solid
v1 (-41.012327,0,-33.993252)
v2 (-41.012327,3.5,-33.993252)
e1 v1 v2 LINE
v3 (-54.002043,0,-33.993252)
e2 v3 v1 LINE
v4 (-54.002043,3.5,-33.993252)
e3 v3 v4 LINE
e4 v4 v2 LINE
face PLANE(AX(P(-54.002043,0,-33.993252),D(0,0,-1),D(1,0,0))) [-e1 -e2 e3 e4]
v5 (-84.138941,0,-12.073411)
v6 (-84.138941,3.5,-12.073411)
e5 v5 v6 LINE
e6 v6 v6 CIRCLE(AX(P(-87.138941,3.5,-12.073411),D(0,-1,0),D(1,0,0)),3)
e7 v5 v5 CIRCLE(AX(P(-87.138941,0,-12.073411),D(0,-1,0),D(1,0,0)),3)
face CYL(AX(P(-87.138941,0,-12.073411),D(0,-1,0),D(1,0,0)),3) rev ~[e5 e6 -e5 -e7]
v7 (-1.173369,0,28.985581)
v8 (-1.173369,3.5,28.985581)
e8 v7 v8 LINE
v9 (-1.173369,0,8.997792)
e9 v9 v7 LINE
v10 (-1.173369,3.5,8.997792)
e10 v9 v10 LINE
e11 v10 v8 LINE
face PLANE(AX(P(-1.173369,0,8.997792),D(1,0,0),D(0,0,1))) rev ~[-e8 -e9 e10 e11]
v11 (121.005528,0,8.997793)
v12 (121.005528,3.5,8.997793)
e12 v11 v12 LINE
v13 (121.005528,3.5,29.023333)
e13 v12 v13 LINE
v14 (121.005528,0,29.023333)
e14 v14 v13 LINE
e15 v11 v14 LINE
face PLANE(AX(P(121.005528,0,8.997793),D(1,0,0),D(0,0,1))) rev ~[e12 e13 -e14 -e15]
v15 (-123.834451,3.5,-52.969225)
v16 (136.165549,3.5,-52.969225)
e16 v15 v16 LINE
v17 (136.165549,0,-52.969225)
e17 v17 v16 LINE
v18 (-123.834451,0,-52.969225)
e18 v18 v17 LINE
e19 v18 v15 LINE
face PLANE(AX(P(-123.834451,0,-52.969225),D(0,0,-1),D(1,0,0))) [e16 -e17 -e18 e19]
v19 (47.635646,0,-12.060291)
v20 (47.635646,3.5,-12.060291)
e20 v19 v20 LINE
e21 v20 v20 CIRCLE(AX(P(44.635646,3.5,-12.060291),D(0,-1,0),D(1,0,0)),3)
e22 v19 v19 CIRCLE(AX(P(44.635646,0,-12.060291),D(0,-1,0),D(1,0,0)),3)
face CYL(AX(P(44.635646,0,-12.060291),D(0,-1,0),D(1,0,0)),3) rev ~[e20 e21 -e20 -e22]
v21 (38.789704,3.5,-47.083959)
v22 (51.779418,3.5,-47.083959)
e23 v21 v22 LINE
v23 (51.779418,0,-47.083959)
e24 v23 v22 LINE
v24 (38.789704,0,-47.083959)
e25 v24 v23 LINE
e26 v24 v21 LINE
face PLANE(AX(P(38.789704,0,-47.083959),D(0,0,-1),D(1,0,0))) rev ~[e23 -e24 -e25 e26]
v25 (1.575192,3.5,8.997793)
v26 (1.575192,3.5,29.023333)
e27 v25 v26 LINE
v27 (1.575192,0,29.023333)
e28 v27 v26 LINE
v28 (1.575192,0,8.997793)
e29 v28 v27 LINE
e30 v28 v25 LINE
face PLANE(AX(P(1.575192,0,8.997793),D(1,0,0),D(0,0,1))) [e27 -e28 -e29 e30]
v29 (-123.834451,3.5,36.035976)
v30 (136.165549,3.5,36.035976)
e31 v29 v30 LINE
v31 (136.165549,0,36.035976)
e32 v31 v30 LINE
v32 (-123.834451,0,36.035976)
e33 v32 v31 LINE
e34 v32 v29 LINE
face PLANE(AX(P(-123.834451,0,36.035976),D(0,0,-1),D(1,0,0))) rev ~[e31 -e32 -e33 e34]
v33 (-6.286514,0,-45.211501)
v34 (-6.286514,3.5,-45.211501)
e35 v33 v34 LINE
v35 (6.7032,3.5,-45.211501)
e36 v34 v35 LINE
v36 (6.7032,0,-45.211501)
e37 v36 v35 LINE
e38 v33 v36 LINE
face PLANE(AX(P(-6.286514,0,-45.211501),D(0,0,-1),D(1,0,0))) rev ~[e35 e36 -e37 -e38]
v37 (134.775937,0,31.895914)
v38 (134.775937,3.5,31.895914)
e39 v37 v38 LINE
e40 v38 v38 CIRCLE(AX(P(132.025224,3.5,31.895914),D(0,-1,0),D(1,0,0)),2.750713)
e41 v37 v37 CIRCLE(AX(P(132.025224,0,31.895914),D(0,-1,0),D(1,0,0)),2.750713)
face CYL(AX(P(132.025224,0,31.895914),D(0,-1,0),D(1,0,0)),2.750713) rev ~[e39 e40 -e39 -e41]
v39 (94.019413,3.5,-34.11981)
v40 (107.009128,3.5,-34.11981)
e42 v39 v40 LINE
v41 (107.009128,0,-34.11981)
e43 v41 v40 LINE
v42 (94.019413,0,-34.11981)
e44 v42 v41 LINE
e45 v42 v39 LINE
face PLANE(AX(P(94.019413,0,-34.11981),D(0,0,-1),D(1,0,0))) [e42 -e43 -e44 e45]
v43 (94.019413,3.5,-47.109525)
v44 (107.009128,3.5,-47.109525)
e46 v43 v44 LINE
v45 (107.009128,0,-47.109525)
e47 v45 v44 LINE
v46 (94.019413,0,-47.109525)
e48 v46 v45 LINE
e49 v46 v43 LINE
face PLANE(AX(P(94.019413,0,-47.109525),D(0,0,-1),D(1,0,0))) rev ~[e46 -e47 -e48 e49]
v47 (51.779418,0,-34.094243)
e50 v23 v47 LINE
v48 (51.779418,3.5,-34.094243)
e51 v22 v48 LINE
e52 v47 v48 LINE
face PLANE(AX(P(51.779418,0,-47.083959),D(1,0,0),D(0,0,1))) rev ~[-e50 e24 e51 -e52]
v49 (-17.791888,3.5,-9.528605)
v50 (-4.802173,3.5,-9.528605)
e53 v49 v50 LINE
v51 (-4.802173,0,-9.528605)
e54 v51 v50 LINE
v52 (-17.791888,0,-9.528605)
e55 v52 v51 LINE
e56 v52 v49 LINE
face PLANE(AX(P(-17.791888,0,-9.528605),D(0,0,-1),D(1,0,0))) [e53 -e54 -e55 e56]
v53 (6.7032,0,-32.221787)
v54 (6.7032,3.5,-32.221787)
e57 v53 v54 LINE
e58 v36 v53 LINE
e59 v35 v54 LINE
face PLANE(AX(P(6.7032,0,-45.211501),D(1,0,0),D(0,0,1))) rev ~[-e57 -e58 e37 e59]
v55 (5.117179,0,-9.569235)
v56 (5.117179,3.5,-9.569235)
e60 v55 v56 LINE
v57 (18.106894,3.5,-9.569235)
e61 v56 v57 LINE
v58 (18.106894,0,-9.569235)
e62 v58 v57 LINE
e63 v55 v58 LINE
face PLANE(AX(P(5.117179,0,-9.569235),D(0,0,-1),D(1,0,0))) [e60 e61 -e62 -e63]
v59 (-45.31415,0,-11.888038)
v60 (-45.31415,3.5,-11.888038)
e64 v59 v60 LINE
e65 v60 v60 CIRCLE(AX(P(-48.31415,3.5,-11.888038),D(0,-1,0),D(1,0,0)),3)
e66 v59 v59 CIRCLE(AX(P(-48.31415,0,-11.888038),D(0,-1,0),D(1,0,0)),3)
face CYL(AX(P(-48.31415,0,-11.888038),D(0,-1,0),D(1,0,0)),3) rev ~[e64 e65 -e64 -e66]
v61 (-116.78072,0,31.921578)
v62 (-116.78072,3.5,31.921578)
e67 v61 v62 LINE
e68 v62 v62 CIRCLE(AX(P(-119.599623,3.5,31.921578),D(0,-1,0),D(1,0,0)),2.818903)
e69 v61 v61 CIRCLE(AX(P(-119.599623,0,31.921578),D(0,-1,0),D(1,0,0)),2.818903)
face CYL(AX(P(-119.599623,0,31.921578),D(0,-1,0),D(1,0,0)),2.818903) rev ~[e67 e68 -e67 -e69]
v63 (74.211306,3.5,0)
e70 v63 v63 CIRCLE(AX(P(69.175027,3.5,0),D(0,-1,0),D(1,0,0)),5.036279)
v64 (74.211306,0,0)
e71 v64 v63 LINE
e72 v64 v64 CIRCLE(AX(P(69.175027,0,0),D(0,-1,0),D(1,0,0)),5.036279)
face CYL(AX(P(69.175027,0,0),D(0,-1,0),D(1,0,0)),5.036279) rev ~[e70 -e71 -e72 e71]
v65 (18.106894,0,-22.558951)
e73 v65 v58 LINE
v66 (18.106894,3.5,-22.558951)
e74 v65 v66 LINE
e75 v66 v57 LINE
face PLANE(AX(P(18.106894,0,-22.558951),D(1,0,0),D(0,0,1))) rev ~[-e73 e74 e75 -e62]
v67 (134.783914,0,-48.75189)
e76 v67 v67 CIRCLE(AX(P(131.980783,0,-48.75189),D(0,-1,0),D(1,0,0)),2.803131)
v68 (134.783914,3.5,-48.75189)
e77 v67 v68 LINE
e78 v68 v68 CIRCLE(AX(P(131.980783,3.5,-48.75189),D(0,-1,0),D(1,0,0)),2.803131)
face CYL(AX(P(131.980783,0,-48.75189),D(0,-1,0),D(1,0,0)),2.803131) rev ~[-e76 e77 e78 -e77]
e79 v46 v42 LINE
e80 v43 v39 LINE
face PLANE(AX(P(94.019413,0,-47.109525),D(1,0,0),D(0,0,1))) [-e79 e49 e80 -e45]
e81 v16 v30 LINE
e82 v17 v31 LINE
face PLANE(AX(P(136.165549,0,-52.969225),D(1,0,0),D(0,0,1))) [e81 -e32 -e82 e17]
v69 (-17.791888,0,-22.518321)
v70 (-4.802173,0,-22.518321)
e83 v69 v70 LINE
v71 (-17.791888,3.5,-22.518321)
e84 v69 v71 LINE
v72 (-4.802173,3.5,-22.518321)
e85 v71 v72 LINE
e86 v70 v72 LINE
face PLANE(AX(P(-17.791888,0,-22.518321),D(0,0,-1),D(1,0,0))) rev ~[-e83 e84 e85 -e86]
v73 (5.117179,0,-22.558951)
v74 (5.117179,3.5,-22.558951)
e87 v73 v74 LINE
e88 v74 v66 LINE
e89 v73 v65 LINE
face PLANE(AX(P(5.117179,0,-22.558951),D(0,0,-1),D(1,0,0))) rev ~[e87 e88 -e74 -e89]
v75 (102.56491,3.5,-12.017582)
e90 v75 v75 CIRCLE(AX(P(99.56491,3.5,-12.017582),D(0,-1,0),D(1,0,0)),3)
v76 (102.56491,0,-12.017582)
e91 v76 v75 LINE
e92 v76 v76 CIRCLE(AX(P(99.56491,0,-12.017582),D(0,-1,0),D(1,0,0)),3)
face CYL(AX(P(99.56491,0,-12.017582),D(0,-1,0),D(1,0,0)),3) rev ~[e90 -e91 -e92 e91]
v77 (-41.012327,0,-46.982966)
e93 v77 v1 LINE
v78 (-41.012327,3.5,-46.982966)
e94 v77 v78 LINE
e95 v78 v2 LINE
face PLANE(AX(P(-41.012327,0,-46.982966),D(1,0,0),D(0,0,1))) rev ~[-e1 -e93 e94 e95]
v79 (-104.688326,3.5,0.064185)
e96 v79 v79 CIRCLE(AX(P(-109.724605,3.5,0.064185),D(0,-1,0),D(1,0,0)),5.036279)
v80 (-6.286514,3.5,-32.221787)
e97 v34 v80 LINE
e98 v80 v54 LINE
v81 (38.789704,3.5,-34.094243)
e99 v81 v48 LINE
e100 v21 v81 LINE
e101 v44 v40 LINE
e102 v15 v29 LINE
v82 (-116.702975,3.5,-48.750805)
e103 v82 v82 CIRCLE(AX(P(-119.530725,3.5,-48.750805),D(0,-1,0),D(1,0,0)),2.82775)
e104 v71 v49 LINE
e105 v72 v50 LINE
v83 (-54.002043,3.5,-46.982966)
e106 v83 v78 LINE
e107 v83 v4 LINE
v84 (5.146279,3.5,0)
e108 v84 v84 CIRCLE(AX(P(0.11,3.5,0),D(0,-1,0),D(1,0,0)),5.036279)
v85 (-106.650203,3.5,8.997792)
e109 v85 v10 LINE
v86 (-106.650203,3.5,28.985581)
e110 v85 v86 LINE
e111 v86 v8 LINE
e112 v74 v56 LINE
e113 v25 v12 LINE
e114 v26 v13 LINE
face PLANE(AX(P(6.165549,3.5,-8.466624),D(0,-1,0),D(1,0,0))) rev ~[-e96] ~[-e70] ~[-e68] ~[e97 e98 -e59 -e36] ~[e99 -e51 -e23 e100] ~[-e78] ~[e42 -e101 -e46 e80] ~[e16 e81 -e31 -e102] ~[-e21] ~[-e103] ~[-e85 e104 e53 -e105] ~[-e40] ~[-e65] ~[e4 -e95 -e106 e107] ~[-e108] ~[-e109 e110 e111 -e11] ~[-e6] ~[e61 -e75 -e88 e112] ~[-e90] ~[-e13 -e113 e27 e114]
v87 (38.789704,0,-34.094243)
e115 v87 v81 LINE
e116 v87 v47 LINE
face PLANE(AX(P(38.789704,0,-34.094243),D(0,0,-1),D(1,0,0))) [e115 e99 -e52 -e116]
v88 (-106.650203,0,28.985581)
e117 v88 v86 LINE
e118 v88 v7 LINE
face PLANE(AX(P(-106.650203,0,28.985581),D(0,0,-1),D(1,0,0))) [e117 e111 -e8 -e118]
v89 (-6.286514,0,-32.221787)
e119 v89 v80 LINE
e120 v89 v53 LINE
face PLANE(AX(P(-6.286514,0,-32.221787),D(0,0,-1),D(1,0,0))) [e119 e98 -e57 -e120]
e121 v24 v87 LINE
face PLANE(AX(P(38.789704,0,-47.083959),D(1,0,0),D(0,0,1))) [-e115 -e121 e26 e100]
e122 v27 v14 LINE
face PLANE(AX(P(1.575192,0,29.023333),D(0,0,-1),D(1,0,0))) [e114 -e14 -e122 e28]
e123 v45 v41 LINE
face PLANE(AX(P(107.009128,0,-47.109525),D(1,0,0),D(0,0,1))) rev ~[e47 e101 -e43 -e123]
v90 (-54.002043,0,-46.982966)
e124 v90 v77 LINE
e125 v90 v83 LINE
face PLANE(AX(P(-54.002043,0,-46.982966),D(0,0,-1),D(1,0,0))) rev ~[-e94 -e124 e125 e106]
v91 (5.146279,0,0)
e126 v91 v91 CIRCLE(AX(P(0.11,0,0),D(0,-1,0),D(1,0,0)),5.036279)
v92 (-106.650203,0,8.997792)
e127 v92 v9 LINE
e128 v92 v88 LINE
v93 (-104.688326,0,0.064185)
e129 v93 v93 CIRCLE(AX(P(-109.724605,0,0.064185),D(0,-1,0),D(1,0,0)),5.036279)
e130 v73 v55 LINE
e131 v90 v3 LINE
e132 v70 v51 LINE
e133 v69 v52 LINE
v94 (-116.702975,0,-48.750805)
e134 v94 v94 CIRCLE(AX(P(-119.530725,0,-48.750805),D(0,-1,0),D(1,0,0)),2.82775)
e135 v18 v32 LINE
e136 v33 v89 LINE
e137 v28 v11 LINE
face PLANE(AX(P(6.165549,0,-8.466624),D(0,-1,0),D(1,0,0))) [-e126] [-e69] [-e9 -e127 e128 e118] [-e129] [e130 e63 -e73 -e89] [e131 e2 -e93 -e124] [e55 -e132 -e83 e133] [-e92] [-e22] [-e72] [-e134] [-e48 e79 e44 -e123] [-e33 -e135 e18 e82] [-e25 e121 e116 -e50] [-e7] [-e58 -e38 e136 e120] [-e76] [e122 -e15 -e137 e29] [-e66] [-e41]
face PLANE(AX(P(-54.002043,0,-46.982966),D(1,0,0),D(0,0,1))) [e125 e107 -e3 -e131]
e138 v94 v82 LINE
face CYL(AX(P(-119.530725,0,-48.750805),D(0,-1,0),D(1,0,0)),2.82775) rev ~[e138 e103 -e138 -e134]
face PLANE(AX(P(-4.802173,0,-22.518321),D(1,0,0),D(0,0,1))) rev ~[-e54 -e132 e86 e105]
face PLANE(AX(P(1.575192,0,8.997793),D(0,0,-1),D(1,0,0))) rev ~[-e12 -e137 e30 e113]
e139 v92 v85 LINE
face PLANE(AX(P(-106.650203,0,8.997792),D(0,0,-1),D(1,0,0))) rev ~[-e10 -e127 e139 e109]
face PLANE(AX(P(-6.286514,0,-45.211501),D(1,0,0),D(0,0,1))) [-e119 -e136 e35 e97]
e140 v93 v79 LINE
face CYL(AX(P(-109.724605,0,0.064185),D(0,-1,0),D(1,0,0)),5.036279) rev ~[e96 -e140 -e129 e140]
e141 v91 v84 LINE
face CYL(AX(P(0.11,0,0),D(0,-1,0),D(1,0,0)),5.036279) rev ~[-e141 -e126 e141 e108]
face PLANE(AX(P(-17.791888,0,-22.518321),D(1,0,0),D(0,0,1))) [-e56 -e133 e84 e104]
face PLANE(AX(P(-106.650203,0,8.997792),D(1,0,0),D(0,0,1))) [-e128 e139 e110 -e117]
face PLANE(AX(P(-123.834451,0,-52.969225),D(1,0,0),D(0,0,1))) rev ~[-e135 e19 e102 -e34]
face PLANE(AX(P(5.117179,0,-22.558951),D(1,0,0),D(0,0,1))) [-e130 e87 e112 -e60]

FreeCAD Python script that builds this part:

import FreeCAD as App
import Part
import Sketcher
from FreeCAD import Vector
Q = App.Units.Quantity


def add_polygon(sketch, points):
    """Adds a closed chain of lines whose ends are joined by coincident constraints."""
    first, n = sketch.GeometryCount, len(points)
    for a, b in zip(points, points[1:] + points[:1]):
        sketch.addGeometry(Part.LineSegment(App.Vector(*a, 0), App.Vector(*b, 0)), False)
    for i in range(n):
        sketch.addConstraint(Sketcher.Constraint("Coincident", first + i, 2, first + (i + 1) % n, 1))

doc = App.newDocument("Part")
params = doc.addObject("Spreadsheet::Sheet", "Params")
for row, (alias, value) in enumerate([
    ("sketch1_diameter", "6 mm"),
    ("sketch1_width", "260 mm"),
    ("pad1_length", "3.5 mm"),
], start=1):
    params.set(f"A{row}", alias)
    params.set(f"B{row}", "=" + value)
    params.setAlias(f"B{row}", alias)

body = doc.addObject("PartDesign::Body", "Body")

# Sketch on XZ plane
sketch1 = doc.addObject("Sketcher::SketchObject", "Sketch")
body.addObject(sketch1)
sketch1.AttachmentSupport = (doc.XZ_Plane, [""])
sketch1.MapMode = "FlatFace"
add_polygon(sketch1, [(-123.8, 36), (-123.8, -53), (136.2, -53), (136.2, 36)])  # lines 0-3
sketch1.addGeometry(Part.Circle(Vector(-119.5, -48.8, 0), Vector(0, 0, 1), 2.8), False)  # 4
add_polygon(sketch1, [(-41, -47), (-54, -47), (-54, -34), (-41, -34)])  # lines 5-8
add_polygon(sketch1, [(6.7, -45.2), (-6.3, -45.2), (-6.3, -32.2), (6.7, -32.2)])  # lines 9-12
sketch1.addGeometry(Part.Circle(Vector(-87.1, -12.1, 0), Vector(0, 0, 1), 3), False)  # 13
sketch1.addGeometry(Part.Circle(Vector(-48.3, -11.9, 0), Vector(0, 0, 1), 3), False)  # 14
add_polygon(sketch1, [(-4.8, -22.5), (-17.8, -22.5), (-17.8, -9.5), (-4.8, -9.5)])  # lines 15-18
add_polygon(sketch1, [(51.8, -47.1), (38.8, -47.1), (38.8, -34.1), (51.8, -34.1)])  # lines 19-22
sketch1.addGeometry(Part.Circle(Vector(132, -48.8, 0), Vector(0, 0, 1), 2.8), False)  # 23
add_polygon(sketch1, [(107, -47.1), (94, -47.1), (94, -34.1), (107, -34.1)])  # lines 24-27
add_polygon(sketch1, [(18.1, -22.6), (5.1, -22.6), (5.1, -9.6), (18.1, -9.6)])  # lines 28-31
sketch1.addGeometry(Part.Circle(Vector(44.6, -12.1, 0), Vector(0, 0, 1), 3), False)  # 32
sketch1.addGeometry(Part.Circle(Vector(99.6, -12, 0), Vector(0, 0, 1), 3), False)  # 33
sketch1.addGeometry(Part.Circle(Vector(-109.7, 0.1, 0), Vector(0, 0, 1), 5), False)  # 34
sketch1.addGeometry(Part.Circle(Vector(0.1, 0, 0), Vector(0, 0, 1), 5), False)  # 35
sketch1.addGeometry(Part.Circle(Vector(-119.6, 31.9, 0), Vector(0, 0, 1), 2.8), False)  # 36
add_polygon(sketch1, [(-1.2, 9), (-106.7, 9), (-106.7, 29), (-1.2, 29)])  # lines 37-40
sketch1.addGeometry(Part.Circle(Vector(69.2, 0, 0), Vector(0, 0, 1), 5), False)  # 41
add_polygon(sketch1, [(121, 9), (1.6, 9), (1.6, 29), (121, 29)])  # lines 42-45
sketch1.addGeometry(Part.Circle(Vector(132, 31.9, 0), Vector(0, 0, 1), 2.8), False)  # 46
sketch1.addConstraint([
    Sketcher.Constraint("Vertical", 0),
    Sketcher.Constraint("Horizontal", 1),
    Sketcher.Constraint("Vertical", 2),
    Sketcher.Constraint("Horizontal", 3),
    Sketcher.Constraint("Horizontal", 5),
    Sketcher.Constraint("Vertical", 6),
    Sketcher.Constraint("Horizontal", 7),
    Sketcher.Constraint("Vertical", 8),
    Sketcher.Constraint("Horizontal", 9),
    Sketcher.Constraint("Vertical", 10),
    Sketcher.Constraint("Horizontal", 11),
    Sketcher.Constraint("Vertical", 12),
    Sketcher.Constraint("Horizontal", 15),
    Sketcher.Constraint("Vertical", 16),
    Sketcher.Constraint("Horizontal", 17),
    Sketcher.Constraint("Vertical", 18),
    Sketcher.Constraint("Horizontal", 19),
    Sketcher.Constraint("Vertical", 20),
    Sketcher.Constraint("Horizontal", 21),
    Sketcher.Constraint("Vertical", 22),
    Sketcher.Constraint("Horizontal", 24),
    Sketcher.Constraint("Vertical", 25),
    Sketcher.Constraint("Horizontal", 26),
    Sketcher.Constraint("Vertical", 27),
    Sketcher.Constraint("Horizontal", 28),
    Sketcher.Constraint("Vertical", 29),
    Sketcher.Constraint("Horizontal", 30),
    Sketcher.Constraint("Vertical", 31),
    Sketcher.Constraint("Horizontal", 37),
    Sketcher.Constraint("Vertical", 38),
    Sketcher.Constraint("Horizontal", 39),
    Sketcher.Constraint("Vertical", 40),
    Sketcher.Constraint("Horizontal", 42),
    Sketcher.Constraint("Vertical", 43),
    Sketcher.Constraint("Horizontal", 44),
    Sketcher.Constraint("Vertical", 45),
    Sketcher.Constraint("Equal", 13, 14),
    Sketcher.Constraint("Equal", 14, 32),
    Sketcher.Constraint("Equal", 32, 33),
    Sketcher.Constraint("Equal", 34, 35),
    Sketcher.Constraint("Equal", 35, 41),
    Sketcher.Constraint("PointOnObject", 35, 3, -1),
    Sketcher.Constraint("PointOnObject", 41, 3, -1),
    Sketcher.Constraint("Horizontal", 40, 2, 42, 2),
    Sketcher.Constraint("Equal", 7, 9),
    Sketcher.Constraint("Equal", 11, 15),
    Sketcher.Constraint("Equal", 17, 19),
    Sketcher.Constraint("Equal", 21, 24),
    Sketcher.Constraint("Equal", 26, 28),
    Sketcher.Constraint("Equal", 30, 6),
    Sketcher.Constraint("Equal", 8, 10),
    Sketcher.Constraint("Equal", 12, 16),
    Sketcher.Constraint("Equal", 18, 20),
    Sketcher.Constraint("Equal", 22, 25),
    Sketcher.Constraint("Equal", 27, 29),
    Sketcher.Constraint("Diameter", 13, Q("6 mm")),
    Sketcher.Constraint("DistanceX", 1, 1, 1, 2, Q("260 mm")),
    Sketcher.Constraint("Diameter", 4, Q("5.6555 mm")),
    Sketcher.Constraint("Diameter", 34, Q("10.072558 mm")),
    Sketcher.Constraint("DistanceX", -1, 1, 35, 3, Q("0.11 mm")),
    Sketcher.Constraint("Diameter", 23, Q("5.606262 mm")),
    Sketcher.Constraint("Diameter", 36, Q("5.637806 mm")),
    Sketcher.Constraint("Diameter", 46, Q("5.501426 mm")),
    Sketcher.Constraint("DistanceY", 0, 2, 0, 1, Q("89.005201 mm")),
    Sketcher.Constraint("DistanceY", 38, 1, 38, 2, Q("19.987789 mm")),
    Sketcher.Constraint("DistanceY", 43, 1, 43, 2, Q("20.02554 mm")),
    Sketcher.Constraint("DistanceY", 9, 2, -1, 1, Q("45.211501 mm")),
    Sketcher.Constraint("DistanceX", -1, 1, 11, 2, Q("6.7032 mm")),
    Sketcher.Constraint("DistanceY", 23, 3, 32, 3, Q("36.691599 mm")),
    Sketcher.Constraint("DistanceX", 0, 2, 14, 3, Q("75.520301 mm")),
    Sketcher.Constraint("DistanceY", 36, 3, 3, 2, Q("4.114398 mm")),
    Sketcher.Constraint("DistanceX", 13, 3, 5, 2, Q("33.136899 mm")),
    Sketcher.Constraint("DistanceY", 1, 2, 24, 2, Q("5.859699 mm")),
    Sketcher.Constraint("DistanceY", 17, 2, 40, 2, Q("18.526398 mm")),
    Sketcher.Constraint("DistanceX", 41, 3, 44, 2, Q("51.830501 mm")),
    Sketcher.Constraint("DistanceX", 26, 2, 44, 2, Q("13.996401 mm")),
    Sketcher.Constraint("DistanceX", 5, 2, 5, 1, Q("12.989715 mm")),
    Sketcher.Constraint("DistanceX", 37, 2, 37, 1, Q("105.476833 mm")),
    Sketcher.Constraint("DistanceX", 42, 2, 42, 1, Q("119.430337 mm")),
    Sketcher.Constraint("DistanceX", 13, 3, -1, 1, Q("87.138941 mm")),
    Sketcher.Constraint("DistanceY", 13, 3, -1, 1, Q("12.073411 mm")),
    Sketcher.Constraint("DistanceX", 14, 3, -1, 1, Q("48.31415 mm")),
    Sketcher.Constraint("DistanceY", 23, 3, -1, 1, Q("48.75189 mm")),
    Sketcher.Constraint("DistanceX", -1, 1, 33, 3, Q("99.56491 mm")),
    Sketcher.Constraint("DistanceY", -1, 1, 36, 3, Q("31.921578 mm")),
    Sketcher.Constraint("DistanceY", 6, 2, -1, 1, Q("33.993252 mm")),
    Sketcher.Constraint("DistanceY", 15, 2, -1, 1, Q("22.518321 mm")),
    Sketcher.Constraint("DistanceY", 19, 2, -1, 1, Q("47.083959 mm")),
    Sketcher.Constraint("DistanceX", -1, 1, 21, 2, Q("51.779418 mm")),
    Sketcher.Constraint("DistanceX", -1, 1, 28, 2, Q("5.117179 mm")),
    Sketcher.Constraint("DistanceY", 28, 2, -1, 1, Q("22.558951 mm")),
    Sketcher.Constraint("DistanceX", 39, 2, -1, 1, Q("1.173369 mm")),
    Sketcher.Constraint("DistanceX", -1, 1, 42, 2, Q("1.575192 mm")),
    Sketcher.Constraint("DistanceX", 4, 3, 23, 3, Q("251.511508 mm")),
    Sketcher.Constraint("DistanceX", 4, 3, 32, 3, Q("164.166371 mm")),
    Sketcher.Constraint("DistanceY", 32, 3, 33, 3, Q("0.042709 mm")),
    Sketcher.Constraint("DistanceX", 4, 3, 34, 3, Q("9.80612 mm")),
    Sketcher.Constraint("DistanceY", 4, 3, 34, 3, Q("48.81499 mm")),
    Sketcher.Constraint("DistanceX", 36, 3, 13, 3, Q("32.460682 mm")),
    Sketcher.Constraint("DistanceX", 32, 3, 41, 3, Q("24.539381 mm")),
    Sketcher.Constraint("DistanceX", 23, 3, 46, 3, Q("0.044441 mm")),
    Sketcher.Constraint("DistanceY", 0, 2, 4, 3, Q("4.21842 mm")),
    Sketcher.Constraint("DistanceY", 1, 2, 46, 3, Q("84.865139 mm")),
    Sketcher.Constraint("DistanceY", 10, 2, 14, 3, Q("20.333749 mm")),
    Sketcher.Constraint("DistanceX", 7, 2, 15, 2, Q("23.22044 mm")),
])
sketch1.setExpression("Constraints[91]", "Params.sketch1_diameter")
sketch1.setExpression("Constraints[92]", "Params.sketch1_width")
pad1 = doc.addObject("PartDesign::Pad", "Pad")
body.addObject(pad1)
pad1.Profile = sketch1
pad1.setExpression("Length", "Params.pad1_length")
pad1.Reversed = True

doc.recompute()
